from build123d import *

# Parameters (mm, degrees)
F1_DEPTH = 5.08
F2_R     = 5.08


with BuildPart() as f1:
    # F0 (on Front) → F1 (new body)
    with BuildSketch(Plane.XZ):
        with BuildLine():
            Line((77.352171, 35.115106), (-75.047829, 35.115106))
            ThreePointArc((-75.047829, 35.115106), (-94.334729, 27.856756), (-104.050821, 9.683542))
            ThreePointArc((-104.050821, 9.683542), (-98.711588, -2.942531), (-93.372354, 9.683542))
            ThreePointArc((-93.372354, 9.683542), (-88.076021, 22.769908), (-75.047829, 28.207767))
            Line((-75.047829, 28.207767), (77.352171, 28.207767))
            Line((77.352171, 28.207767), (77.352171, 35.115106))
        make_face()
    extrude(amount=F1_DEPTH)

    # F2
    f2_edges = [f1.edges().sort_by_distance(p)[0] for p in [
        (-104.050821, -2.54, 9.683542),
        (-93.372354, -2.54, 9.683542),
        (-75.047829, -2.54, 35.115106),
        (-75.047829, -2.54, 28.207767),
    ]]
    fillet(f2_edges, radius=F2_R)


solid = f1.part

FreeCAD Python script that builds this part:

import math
import FreeCAD as App
import Part
import Sketcher
Q = App.Units.Quantity


def edges_at(feature, points):
    """Names of the edges that pass closest to the given points."""
    edges = feature.Shape.Edges
    near = lambda p: min(range(len(edges)), key=lambda i: edges[i].distToShape(Part.Vertex(*p))[0])
    return sorted({f"Edge{near(p) + 1}" for p in points})

doc = App.newDocument("Part")
body = doc.addObject("PartDesign::Body", "Body")

sketch1 = doc.addObject("Sketcher::SketchObject", "Sketch")
body.addObject(sketch1)
sketch1.AttachmentSupport = (doc.XZ_Plane, [""])
sketch1.MapMode = "FlatFace"
sketch1.addGeometry([
    Part.LineSegment(App.Vector(77.352171, 35.115106, 0), App.Vector(-75.047829, 35.115106, 0)),
    Part.ArcOfCircle(Part.Circle(App.Vector(-75.04783, 5.861342, 0), App.Vector(0, 0, 1), 29.253764), math.radians(89.999998), math.radians(172.492459)),
    Part.ArcOfCircle(Part.Circle(App.Vector(-98.711587, 4.499416, 0), App.Vector(0, 0, 1), 7.441947), math.radians(135.844442), math.radians(404.155558)),
    Part.ArcOfCircle(Part.Circle(App.Vector(-75.047831, 9.882167, 0), App.Vector(0, 0, 1), 18.3256), math.radians(89.999995), math.radians(180.621022)),
    Part.LineSegment(App.Vector(-75.047829, 28.207767, 0), App.Vector(77.352171, 28.207767, 0)),
    Part.LineSegment(App.Vector(77.352171, 28.207767, 0), App.Vector(77.352171, 35.115106, 0)),
], False)
sketch1.addConstraint([
    Sketcher.Constraint("Tangent", 0, 2, 1, 1),
    Sketcher.Constraint("Coincident", 1, 2, 2, 1),
    Sketcher.Constraint("Coincident", 2, 2, 3, 2),
    Sketcher.Constraint("Tangent", 3, 1, 4, 1),
    Sketcher.Constraint("Coincident", 4, 2, 5, 1),
    Sketcher.Constraint("Coincident", 5, 2, 0, 1),
    Sketcher.Constraint("Horizontal", 0),
    Sketcher.Constraint("Horizontal", 4),
    Sketcher.Constraint("Vertical", 5),
    Sketcher.Constraint("Horizontal", 1, 2, 2, 2),
    Sketcher.Constraint("Vertical", 1, 3, 3, 3),
    Sketcher.Constraint("DistanceX", 0, 2, 0, 1, Q("6 in")),
    Sketcher.Constraint("Radius", 3, Q("18.3256 mm")),
    Sketcher.Constraint("Radius", 1, Q("29.253764 mm")),
    Sketcher.Constraint("Radius", 2, Q("7.441947 mm")),
    Sketcher.Constraint("DistanceY", 1, 3, 3, 3, Q("0.1583002 in")),
    Sketcher.Constraint("DistanceY", 2, 2, 3, 1, Q("0.7293002 in")),
    Sketcher.Constraint("DistanceX", 1, 3, -1, 1, Q("75.04783 mm")),
    Sketcher.Constraint("DistanceY", -1, 1, 2, 2, Q("9.683542 mm")),
])
pad1 = doc.addObject("PartDesign::Pad", "Pad")
body.addObject(pad1)
pad1.Profile = sketch1
pad1.Length = Q("0.2 in")
doc.recompute()

fillet = doc.addObject("PartDesign::Fillet", "Fillet")
body.addObject(fillet)
fillet.Base = (pad1, edges_at(pad1, [
    (-104.051, -2.54, 9.684),
    (-93.372, -2.54, 9.684),
    (-75.048, -2.54, 35.115),
    (-75.048, -2.54, 28.208),
]))
fillet.Radius = Q("0.2 in")

doc.recompute()
